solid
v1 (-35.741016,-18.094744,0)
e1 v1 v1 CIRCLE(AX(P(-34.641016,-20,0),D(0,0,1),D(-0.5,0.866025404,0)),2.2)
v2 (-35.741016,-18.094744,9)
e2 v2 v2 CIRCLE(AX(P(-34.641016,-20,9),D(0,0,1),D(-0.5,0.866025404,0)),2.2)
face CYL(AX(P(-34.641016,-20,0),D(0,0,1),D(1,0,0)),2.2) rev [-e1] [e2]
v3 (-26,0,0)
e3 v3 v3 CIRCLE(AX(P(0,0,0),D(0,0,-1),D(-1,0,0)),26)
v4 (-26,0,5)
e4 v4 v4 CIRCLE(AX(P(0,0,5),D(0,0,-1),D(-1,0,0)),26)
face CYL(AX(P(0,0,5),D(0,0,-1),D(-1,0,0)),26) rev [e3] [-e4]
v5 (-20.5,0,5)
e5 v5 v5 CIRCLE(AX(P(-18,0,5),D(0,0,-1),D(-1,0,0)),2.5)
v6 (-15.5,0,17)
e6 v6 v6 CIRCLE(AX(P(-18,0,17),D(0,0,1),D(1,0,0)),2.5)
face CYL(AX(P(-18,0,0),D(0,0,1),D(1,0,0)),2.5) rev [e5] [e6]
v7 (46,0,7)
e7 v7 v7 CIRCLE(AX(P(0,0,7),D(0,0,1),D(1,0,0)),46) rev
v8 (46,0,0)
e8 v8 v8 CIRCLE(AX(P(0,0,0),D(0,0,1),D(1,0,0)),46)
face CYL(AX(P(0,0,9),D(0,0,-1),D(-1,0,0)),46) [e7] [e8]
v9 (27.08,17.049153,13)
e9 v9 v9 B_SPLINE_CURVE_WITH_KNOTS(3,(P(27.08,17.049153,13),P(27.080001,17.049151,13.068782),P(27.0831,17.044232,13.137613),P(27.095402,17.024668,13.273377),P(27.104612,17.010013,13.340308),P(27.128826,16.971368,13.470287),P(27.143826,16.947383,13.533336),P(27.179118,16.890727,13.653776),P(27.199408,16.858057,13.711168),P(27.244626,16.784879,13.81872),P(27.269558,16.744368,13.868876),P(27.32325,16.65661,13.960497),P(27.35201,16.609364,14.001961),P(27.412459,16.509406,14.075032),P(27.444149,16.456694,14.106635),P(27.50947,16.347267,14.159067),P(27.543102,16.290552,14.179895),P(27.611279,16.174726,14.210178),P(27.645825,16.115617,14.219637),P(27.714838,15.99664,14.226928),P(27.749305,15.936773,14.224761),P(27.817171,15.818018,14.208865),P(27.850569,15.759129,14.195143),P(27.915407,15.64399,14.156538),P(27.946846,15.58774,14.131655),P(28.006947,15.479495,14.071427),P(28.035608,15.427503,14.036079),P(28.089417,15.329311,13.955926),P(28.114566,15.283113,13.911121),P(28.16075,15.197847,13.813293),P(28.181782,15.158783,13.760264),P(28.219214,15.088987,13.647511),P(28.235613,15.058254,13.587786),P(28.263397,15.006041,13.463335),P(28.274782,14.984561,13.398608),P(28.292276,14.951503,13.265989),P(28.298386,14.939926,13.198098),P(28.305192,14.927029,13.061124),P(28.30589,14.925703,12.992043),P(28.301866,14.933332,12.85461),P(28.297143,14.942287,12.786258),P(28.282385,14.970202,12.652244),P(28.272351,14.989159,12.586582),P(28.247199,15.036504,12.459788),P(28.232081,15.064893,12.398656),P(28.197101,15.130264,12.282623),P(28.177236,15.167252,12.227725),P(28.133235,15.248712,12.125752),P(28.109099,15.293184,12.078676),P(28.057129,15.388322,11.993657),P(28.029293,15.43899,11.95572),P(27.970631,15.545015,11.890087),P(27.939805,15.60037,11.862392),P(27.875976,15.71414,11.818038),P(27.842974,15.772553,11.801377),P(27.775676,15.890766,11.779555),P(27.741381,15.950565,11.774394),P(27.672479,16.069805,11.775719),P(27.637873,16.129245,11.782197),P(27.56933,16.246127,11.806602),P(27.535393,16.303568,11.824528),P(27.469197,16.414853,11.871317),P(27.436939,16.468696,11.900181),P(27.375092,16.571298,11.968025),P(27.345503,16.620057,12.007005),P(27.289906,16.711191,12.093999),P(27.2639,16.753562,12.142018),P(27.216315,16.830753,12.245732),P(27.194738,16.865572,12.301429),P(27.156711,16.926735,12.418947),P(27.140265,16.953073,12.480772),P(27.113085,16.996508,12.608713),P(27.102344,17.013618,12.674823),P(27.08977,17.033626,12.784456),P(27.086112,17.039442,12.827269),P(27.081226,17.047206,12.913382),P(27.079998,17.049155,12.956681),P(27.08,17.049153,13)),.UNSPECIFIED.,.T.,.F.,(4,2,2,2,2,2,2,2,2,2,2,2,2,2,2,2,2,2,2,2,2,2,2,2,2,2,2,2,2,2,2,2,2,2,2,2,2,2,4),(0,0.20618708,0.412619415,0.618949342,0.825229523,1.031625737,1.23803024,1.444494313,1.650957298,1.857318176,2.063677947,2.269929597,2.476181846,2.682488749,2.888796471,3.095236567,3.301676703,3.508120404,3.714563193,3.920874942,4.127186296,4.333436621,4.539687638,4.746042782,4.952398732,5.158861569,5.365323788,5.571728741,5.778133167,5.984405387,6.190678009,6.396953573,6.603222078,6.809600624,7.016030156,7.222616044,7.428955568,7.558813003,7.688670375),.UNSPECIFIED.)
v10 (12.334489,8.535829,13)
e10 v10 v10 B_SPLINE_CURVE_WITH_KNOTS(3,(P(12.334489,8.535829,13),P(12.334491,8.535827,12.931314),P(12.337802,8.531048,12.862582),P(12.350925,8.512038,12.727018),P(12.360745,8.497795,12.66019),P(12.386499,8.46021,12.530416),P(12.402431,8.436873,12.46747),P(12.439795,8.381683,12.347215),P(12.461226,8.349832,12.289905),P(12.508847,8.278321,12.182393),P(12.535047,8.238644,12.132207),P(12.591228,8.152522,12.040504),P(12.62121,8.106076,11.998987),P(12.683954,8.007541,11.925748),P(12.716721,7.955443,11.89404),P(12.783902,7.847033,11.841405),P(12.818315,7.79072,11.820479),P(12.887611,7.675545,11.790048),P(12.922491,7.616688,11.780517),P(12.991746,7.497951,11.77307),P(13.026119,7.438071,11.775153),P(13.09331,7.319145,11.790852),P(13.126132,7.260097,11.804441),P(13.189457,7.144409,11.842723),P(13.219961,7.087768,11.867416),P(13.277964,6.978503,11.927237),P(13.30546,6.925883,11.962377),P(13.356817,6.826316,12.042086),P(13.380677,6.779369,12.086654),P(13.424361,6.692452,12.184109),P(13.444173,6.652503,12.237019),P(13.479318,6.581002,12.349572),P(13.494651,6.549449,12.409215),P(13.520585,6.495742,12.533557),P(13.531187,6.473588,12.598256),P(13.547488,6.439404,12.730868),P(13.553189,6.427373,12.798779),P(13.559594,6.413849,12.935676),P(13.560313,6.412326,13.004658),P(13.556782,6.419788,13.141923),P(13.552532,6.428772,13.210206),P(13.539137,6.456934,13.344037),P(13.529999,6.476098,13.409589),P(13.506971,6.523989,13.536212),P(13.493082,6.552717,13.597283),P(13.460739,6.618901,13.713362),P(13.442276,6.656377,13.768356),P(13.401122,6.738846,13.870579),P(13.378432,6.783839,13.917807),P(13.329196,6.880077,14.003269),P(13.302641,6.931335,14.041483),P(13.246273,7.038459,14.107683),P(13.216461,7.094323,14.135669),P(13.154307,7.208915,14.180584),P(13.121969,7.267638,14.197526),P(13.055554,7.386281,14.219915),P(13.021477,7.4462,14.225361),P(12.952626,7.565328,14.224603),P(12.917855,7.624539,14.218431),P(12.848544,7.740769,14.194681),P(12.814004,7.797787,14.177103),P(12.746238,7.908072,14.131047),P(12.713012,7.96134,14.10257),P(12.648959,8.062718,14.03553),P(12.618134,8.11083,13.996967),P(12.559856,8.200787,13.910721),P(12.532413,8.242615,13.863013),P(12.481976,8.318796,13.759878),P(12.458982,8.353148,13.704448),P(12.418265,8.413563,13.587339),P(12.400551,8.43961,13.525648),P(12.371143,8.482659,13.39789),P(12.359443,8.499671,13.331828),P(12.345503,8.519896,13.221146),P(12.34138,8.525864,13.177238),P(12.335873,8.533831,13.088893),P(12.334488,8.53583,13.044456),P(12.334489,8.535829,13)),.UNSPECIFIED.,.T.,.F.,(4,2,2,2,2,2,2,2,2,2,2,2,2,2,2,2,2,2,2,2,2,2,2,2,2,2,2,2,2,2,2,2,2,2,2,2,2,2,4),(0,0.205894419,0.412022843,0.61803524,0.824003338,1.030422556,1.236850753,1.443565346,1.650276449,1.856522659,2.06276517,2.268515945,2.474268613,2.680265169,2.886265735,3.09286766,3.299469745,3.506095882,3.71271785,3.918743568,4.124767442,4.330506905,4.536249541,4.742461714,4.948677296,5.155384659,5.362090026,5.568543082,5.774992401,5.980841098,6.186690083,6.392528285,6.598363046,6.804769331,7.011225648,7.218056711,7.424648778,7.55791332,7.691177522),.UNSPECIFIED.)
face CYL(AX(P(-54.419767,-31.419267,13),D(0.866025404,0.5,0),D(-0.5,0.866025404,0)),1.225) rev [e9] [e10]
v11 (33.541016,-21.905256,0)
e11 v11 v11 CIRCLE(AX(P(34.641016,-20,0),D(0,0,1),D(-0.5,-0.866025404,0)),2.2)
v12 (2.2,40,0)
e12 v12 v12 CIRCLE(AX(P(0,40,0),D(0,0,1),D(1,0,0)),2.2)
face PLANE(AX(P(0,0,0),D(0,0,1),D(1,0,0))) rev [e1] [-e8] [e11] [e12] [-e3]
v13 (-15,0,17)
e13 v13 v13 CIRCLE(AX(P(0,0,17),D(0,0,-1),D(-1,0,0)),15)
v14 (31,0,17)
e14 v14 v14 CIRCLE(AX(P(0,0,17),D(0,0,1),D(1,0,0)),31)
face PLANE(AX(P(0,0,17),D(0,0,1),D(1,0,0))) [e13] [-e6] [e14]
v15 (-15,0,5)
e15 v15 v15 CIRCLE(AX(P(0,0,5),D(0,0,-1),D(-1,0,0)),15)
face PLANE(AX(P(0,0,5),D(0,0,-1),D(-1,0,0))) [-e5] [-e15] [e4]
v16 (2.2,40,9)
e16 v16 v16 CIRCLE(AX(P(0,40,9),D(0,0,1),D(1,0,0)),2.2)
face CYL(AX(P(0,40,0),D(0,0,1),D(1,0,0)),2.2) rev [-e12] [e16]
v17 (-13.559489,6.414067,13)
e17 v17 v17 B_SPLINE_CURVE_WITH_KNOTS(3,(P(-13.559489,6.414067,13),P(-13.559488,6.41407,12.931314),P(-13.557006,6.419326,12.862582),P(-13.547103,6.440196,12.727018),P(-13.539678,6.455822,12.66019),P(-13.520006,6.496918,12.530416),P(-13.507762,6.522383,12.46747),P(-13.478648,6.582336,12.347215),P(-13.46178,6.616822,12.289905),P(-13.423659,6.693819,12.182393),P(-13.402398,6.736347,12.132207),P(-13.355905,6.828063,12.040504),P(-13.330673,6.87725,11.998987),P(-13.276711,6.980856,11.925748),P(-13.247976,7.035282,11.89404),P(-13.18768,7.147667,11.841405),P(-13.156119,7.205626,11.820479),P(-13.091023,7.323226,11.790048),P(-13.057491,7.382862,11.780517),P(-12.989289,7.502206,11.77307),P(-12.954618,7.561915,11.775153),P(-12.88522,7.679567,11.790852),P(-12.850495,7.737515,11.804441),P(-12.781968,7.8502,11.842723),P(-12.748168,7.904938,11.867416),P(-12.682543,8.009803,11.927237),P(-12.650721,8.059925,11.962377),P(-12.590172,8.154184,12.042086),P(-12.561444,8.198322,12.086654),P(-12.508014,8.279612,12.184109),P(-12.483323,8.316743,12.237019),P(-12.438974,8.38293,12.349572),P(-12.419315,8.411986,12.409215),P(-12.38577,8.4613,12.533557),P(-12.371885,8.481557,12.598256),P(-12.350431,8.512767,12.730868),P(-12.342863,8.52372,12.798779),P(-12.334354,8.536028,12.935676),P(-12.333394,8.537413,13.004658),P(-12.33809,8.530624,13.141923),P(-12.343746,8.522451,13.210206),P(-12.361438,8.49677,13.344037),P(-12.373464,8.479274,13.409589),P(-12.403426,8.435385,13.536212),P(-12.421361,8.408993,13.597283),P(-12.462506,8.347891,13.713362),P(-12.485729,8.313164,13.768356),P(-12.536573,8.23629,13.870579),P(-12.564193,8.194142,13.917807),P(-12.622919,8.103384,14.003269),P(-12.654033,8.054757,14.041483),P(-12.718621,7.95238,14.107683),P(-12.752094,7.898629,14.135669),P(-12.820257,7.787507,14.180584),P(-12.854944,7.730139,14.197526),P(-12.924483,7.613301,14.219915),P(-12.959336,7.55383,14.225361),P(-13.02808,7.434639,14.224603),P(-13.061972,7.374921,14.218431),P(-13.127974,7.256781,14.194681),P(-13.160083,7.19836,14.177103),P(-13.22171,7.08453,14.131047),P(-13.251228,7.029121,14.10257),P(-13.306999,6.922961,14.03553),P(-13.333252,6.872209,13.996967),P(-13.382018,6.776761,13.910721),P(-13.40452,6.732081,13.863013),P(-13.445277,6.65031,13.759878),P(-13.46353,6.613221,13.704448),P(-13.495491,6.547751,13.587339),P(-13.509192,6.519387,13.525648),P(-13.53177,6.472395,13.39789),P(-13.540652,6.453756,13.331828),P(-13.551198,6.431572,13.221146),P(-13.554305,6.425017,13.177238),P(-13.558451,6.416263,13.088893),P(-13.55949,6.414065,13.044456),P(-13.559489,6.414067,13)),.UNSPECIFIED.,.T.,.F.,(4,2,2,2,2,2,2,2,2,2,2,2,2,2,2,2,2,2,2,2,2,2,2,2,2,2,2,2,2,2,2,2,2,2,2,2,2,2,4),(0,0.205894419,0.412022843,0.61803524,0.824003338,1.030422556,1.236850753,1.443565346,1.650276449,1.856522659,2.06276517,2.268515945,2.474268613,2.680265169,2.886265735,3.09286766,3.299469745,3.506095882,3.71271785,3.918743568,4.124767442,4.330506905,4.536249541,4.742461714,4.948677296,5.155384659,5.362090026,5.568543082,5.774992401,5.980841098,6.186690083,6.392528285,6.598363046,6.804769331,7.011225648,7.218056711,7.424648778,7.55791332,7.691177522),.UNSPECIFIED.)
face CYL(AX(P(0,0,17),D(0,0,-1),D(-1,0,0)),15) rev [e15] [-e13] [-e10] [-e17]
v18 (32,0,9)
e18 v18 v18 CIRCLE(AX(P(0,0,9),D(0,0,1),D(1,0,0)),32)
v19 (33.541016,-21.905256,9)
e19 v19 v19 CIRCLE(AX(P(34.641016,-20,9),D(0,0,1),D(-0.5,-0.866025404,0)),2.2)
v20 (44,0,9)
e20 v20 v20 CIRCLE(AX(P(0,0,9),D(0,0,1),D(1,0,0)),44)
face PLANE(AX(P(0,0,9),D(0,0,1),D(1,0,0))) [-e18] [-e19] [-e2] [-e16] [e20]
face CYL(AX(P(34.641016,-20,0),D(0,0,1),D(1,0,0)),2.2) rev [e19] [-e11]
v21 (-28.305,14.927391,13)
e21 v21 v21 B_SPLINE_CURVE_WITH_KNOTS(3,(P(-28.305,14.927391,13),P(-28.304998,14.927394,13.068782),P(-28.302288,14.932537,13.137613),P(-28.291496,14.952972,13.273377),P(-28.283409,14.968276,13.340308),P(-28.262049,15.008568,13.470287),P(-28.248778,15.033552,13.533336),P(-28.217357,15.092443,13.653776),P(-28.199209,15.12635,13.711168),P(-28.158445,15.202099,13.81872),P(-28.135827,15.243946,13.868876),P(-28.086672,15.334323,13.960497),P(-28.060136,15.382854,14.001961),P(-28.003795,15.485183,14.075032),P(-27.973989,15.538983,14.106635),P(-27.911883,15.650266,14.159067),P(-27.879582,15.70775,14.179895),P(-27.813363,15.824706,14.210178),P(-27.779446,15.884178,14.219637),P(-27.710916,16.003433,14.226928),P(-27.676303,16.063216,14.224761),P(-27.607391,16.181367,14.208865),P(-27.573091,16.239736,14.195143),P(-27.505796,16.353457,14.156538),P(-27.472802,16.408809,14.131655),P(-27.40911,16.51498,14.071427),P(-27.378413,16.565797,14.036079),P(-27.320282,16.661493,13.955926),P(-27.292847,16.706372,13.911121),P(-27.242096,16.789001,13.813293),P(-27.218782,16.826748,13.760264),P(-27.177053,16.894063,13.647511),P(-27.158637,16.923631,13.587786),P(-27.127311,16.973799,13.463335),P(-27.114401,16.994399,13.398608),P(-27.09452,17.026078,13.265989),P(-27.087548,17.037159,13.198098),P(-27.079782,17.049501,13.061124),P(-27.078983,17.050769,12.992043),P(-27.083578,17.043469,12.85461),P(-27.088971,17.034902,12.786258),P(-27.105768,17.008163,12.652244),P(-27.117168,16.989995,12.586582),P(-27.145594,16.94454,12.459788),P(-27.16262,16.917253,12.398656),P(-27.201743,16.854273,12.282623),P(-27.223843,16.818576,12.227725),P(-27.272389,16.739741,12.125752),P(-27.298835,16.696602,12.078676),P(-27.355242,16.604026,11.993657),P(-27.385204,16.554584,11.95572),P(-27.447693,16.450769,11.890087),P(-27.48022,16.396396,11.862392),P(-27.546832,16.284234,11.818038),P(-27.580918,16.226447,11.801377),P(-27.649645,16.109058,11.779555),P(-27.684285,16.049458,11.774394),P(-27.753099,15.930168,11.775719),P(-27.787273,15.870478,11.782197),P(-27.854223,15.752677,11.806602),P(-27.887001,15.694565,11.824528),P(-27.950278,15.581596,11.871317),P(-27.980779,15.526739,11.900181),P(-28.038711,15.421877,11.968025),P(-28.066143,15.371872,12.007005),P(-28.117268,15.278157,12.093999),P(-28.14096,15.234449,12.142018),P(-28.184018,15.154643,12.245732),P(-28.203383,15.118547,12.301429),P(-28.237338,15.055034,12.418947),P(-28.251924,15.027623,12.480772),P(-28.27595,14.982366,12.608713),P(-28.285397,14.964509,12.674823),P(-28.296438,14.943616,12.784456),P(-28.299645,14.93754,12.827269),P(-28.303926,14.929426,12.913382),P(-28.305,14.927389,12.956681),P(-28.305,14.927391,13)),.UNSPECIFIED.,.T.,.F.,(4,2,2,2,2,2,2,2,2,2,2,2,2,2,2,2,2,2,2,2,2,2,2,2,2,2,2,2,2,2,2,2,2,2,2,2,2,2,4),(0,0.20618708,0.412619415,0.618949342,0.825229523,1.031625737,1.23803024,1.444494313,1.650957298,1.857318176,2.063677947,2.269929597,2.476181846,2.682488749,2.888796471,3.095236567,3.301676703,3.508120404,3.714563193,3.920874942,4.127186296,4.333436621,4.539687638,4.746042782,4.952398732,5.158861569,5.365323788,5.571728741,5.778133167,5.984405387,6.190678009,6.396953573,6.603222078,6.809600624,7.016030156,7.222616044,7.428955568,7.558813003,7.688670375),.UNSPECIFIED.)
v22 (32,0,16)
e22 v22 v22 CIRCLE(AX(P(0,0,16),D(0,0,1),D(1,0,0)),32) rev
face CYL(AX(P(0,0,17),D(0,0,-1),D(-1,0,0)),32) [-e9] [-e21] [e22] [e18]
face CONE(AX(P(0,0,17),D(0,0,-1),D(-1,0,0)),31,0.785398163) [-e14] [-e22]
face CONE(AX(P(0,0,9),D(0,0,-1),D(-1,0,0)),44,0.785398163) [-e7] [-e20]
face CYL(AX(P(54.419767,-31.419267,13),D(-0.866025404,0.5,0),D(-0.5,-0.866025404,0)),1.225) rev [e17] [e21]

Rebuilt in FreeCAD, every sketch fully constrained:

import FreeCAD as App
import Part
import Sketcher
from FreeCAD import Vector
Q = App.Units.Quantity


def edges_at(feature, points):
    """Names of the edges that pass closest to the given points."""
    edges = feature.Shape.Edges
    near = lambda p: min(range(len(edges)), key=lambda i: edges[i].distToShape(Part.Vertex(*p))[0])
    return sorted({f"Edge{near(p) + 1}" for p in points})

doc = App.newDocument("Part")
params = doc.addObject("Spreadsheet::Sheet", "Params")
for row, (alias, value) in enumerate([
    ("sketch1_diameter", "92 mm"),
    ("pad1_length", "9 mm"),
    ("sketch2_diameter", "64 mm"),
    ("pad2_length", "8 mm"),
    ("sketch3_diameter", "52 mm"),
    ("pocket1_length", "5 mm"),
    ("sketch4_diameter", "30 mm"),
    ("sketch5_diameter", "4.4 mm"),
    ("chamfer_size", "2 mm"),
    ("chamfer2_size", "1 mm"),
    ("sketch6_diameter", "2.45 mm"),
    ("pocket4_length", "17.050105 mm"),
    ("sketch7_diameter", "5 mm"),
], start=1):
    params.set(f"A{row}", alias)
    params.set(f"B{row}", "=" + value)
    params.setAlias(f"B{row}", alias)

body = doc.addObject("PartDesign::Body", "Body")

# Sketch on XY plane
sketch1 = doc.addObject("Sketcher::SketchObject", "Sketch")
body.addObject(sketch1)
sketch1.AttachmentSupport = (doc.XY_Plane, [""])
sketch1.MapMode = "FlatFace"
sketch1.addGeometry(Part.Circle(Vector(0, 0, 0), Vector(0, 0, 1), 46), False)
sketch1.addConstraint([
    Sketcher.Constraint("Coincident", 0, 3, -1, 1),
    Sketcher.Constraint("Diameter", 0, Q("92 mm")),
])
sketch1.setExpression("Constraints[1]", "Params.sketch1_diameter")
pad1 = doc.addObject("PartDesign::Pad", "Pad")
body.addObject(pad1)
pad1.Profile = sketch1
pad1.setExpression("Length", "Params.pad1_length")

# Sketch on XY plane
sketch2 = doc.addObject("Sketcher::SketchObject", "Sketch001")
body.addObject(sketch2)
sketch2.AttachmentSupport = (doc.XY_Plane, [""])
sketch2.MapMode = "FlatFace"
sketch2.AttachmentOffset = App.Placement(Vector(0, 0, 9), App.Rotation())
sketch2.addGeometry(Part.Circle(Vector(0, 0, 0), Vector(0, 0, 1), 32), False)
sketch2.addConstraint([
    Sketcher.Constraint("Coincident", 0, 3, -1, 1),
    Sketcher.Constraint("Diameter", 0, Q("64 mm")),
])
sketch2.setExpression("Constraints[1]", "Params.sketch2_diameter")
pad2 = doc.addObject("PartDesign::Pad", "Pad001")
body.addObject(pad2)
pad2.Profile = sketch2
pad2.setExpression("Length", "Params.pad2_length")

# Sketch on XY plane
sketch3 = doc.addObject("Sketcher::SketchObject", "Sketch002")
body.addObject(sketch3)
sketch3.AttachmentSupport = (doc.XY_Plane, [""])
sketch3.MapMode = "FlatFace"
sketch3.addGeometry(Part.Circle(Vector(0, 0, 0), Vector(0, 0, 1), 26), False)
sketch3.addConstraint([
    Sketcher.Constraint("Coincident", 0, 3, -1, 1),
    Sketcher.Constraint("Diameter", 0, Q("52 mm")),
])
sketch3.setExpression("Constraints[1]", "Params.sketch3_diameter")
pocket1 = doc.addObject("PartDesign::Pocket", "Pocket")
body.addObject(pocket1)
pocket1.Profile = sketch3
pocket1.setExpression("Length", "Params.pocket1_length")
pocket1.Reversed = True

# Sketch on XY plane
sketch4 = doc.addObject("Sketcher::SketchObject", "Sketch003")
body.addObject(sketch4)
sketch4.AttachmentSupport = (doc.XY_Plane, [""])
sketch4.MapMode = "FlatFace"
sketch4.AttachmentOffset = App.Placement(Vector(0, 0, 5), App.Rotation())
sketch4.addGeometry(Part.Circle(Vector(0, 0, 0), Vector(0, 0, 1), 15), False)
sketch4.addConstraint([
    Sketcher.Constraint("Coincident", 0, 3, -1, 1),
    Sketcher.Constraint("Diameter", 0, Q("30 mm")),
])
sketch4.setExpression("Constraints[1]", "Params.sketch4_diameter")
pocket2 = doc.addObject("PartDesign::Pocket", "Pocket001")
body.addObject(pocket2)
pocket2.Profile = sketch4
pocket2.Type = "ThroughAll"
pocket2.Reversed = True

# Sketch on XY plane
sketch5 = doc.addObject("Sketcher::SketchObject", "Sketch004")
body.addObject(sketch5)
sketch5.AttachmentSupport = (doc.XY_Plane, [""])
sketch5.MapMode = "FlatFace"
sketch5.AttachmentOffset = App.Placement(Vector(0, 0, 9), App.Rotation())
sketch5.addGeometry(Part.Circle(Vector(0, 40, 0), Vector(0, 0, 1), 2.2), False)
sketch5.addConstraint([
    Sketcher.Constraint("PointOnObject", 0, 3, -2),
    Sketcher.Constraint("Diameter", 0, Q("4.4 mm")),
    Sketcher.Constraint("DistanceY", -1, 1, 0, 3, Q("40 mm")),
])
sketch5.setExpression("Constraints[1]", "Params.sketch5_diameter")
pocket3 = doc.addObject("PartDesign::Pocket", "Pocket002")
body.addObject(pocket3)
pocket3.Profile = sketch5
pocket3.Type = "ThroughAll"
doc.recompute()

polarpattern = doc.addObject("PartDesign::PolarPattern", "PolarPattern")
body.addObject(polarpattern)
polarpattern.Originals = [pocket3]
polarpattern.Axis = (doc.Z_Axis, [""])
polarpattern.Angle = 360
polarpattern.Occurrences = 3
body.Tip = polarpattern
doc.recompute()

chamfer = doc.addObject("PartDesign::Chamfer", "Chamfer")
body.addObject(chamfer)
chamfer.Base = (polarpattern, edges_at(polarpattern, [(-46, 0, 9)]))
chamfer.setExpression("Size", "Params.chamfer_size")
doc.recompute()

chamfer2 = doc.addObject("PartDesign::Chamfer", "Chamfer001")
body.addObject(chamfer2)
chamfer2.Base = (chamfer, edges_at(chamfer, [(-32, 0, 17)]))
chamfer2.setExpression("Size", "Params.chamfer2_size")

# Sketch on an angled plane
sketch6 = doc.addObject("Sketcher::SketchObject", "Sketch005")
body.addObject(sketch6)
sketch6.Placement = App.Placement(Vector(12.946989, 7.474948, 0), App.Rotation(Vector(0, 0, -1), Vector(-0.5, 0.866025404, 0), Vector(0.866025404, 0.5, 0), "ZXY"))
sketch6.addGeometry(Part.Circle(Vector(-13, 0, 0), Vector(0, 0, 1), 1.2), False)
sketch6.addConstraint([
    Sketcher.Constraint("PointOnObject", 0, 3, -1),
    Sketcher.Constraint("Diameter", 0, Q("2.45 mm")),
    Sketcher.Constraint("DistanceX", 0, 3, -1, 1, Q("13 mm")),
])
sketch6.setExpression("Constraints[1]", "Params.sketch6_diameter")
pocket4 = doc.addObject("PartDesign::Pocket", "Pocket003")
body.addObject(pocket4)
pocket4.Profile = sketch6
pocket4.setExpression("Length", "Params.pocket4_length")
pocket4.Reversed = True
doc.recompute()

polarpattern2 = doc.addObject("PartDesign::PolarPattern", "PolarPattern001")
body.addObject(polarpattern2)
polarpattern2.Originals = [pocket4]
polarpattern2.Axis = (doc.Z_Axis, [""])
polarpattern2.Angle = 120
polarpattern2.Occurrences = 2
body.Tip = polarpattern2

# Sketch on XY plane
sketch7 = doc.addObject("Sketcher::SketchObject", "Sketch006")
body.addObject(sketch7)
sketch7.AttachmentSupport = (doc.XY_Plane, [""])
sketch7.MapMode = "FlatFace"
sketch7.AttachmentOffset = App.Placement(Vector(0, 0, 17), App.Rotation())
sketch7.addGeometry(Part.Circle(Vector(-18, 0, 0), Vector(0, 0, 1), 2.5), False)
sketch7.addConstraint([
    Sketcher.Constraint("PointOnObject", 0, 3, -1),
    Sketcher.Constraint("Diameter", 0, Q("5 mm")),
    Sketcher.Constraint("DistanceX", 0, 3, -1, 1, Q("18 mm")),
])
sketch7.setExpression("Constraints[1]", "Params.sketch7_diameter")
pocket5 = doc.addObject("PartDesign::Pocket", "Pocket004")
body.addObject(pocket5)
pocket5.Profile = sketch7
pocket5.Type = "ThroughAll"

doc.recompute()
